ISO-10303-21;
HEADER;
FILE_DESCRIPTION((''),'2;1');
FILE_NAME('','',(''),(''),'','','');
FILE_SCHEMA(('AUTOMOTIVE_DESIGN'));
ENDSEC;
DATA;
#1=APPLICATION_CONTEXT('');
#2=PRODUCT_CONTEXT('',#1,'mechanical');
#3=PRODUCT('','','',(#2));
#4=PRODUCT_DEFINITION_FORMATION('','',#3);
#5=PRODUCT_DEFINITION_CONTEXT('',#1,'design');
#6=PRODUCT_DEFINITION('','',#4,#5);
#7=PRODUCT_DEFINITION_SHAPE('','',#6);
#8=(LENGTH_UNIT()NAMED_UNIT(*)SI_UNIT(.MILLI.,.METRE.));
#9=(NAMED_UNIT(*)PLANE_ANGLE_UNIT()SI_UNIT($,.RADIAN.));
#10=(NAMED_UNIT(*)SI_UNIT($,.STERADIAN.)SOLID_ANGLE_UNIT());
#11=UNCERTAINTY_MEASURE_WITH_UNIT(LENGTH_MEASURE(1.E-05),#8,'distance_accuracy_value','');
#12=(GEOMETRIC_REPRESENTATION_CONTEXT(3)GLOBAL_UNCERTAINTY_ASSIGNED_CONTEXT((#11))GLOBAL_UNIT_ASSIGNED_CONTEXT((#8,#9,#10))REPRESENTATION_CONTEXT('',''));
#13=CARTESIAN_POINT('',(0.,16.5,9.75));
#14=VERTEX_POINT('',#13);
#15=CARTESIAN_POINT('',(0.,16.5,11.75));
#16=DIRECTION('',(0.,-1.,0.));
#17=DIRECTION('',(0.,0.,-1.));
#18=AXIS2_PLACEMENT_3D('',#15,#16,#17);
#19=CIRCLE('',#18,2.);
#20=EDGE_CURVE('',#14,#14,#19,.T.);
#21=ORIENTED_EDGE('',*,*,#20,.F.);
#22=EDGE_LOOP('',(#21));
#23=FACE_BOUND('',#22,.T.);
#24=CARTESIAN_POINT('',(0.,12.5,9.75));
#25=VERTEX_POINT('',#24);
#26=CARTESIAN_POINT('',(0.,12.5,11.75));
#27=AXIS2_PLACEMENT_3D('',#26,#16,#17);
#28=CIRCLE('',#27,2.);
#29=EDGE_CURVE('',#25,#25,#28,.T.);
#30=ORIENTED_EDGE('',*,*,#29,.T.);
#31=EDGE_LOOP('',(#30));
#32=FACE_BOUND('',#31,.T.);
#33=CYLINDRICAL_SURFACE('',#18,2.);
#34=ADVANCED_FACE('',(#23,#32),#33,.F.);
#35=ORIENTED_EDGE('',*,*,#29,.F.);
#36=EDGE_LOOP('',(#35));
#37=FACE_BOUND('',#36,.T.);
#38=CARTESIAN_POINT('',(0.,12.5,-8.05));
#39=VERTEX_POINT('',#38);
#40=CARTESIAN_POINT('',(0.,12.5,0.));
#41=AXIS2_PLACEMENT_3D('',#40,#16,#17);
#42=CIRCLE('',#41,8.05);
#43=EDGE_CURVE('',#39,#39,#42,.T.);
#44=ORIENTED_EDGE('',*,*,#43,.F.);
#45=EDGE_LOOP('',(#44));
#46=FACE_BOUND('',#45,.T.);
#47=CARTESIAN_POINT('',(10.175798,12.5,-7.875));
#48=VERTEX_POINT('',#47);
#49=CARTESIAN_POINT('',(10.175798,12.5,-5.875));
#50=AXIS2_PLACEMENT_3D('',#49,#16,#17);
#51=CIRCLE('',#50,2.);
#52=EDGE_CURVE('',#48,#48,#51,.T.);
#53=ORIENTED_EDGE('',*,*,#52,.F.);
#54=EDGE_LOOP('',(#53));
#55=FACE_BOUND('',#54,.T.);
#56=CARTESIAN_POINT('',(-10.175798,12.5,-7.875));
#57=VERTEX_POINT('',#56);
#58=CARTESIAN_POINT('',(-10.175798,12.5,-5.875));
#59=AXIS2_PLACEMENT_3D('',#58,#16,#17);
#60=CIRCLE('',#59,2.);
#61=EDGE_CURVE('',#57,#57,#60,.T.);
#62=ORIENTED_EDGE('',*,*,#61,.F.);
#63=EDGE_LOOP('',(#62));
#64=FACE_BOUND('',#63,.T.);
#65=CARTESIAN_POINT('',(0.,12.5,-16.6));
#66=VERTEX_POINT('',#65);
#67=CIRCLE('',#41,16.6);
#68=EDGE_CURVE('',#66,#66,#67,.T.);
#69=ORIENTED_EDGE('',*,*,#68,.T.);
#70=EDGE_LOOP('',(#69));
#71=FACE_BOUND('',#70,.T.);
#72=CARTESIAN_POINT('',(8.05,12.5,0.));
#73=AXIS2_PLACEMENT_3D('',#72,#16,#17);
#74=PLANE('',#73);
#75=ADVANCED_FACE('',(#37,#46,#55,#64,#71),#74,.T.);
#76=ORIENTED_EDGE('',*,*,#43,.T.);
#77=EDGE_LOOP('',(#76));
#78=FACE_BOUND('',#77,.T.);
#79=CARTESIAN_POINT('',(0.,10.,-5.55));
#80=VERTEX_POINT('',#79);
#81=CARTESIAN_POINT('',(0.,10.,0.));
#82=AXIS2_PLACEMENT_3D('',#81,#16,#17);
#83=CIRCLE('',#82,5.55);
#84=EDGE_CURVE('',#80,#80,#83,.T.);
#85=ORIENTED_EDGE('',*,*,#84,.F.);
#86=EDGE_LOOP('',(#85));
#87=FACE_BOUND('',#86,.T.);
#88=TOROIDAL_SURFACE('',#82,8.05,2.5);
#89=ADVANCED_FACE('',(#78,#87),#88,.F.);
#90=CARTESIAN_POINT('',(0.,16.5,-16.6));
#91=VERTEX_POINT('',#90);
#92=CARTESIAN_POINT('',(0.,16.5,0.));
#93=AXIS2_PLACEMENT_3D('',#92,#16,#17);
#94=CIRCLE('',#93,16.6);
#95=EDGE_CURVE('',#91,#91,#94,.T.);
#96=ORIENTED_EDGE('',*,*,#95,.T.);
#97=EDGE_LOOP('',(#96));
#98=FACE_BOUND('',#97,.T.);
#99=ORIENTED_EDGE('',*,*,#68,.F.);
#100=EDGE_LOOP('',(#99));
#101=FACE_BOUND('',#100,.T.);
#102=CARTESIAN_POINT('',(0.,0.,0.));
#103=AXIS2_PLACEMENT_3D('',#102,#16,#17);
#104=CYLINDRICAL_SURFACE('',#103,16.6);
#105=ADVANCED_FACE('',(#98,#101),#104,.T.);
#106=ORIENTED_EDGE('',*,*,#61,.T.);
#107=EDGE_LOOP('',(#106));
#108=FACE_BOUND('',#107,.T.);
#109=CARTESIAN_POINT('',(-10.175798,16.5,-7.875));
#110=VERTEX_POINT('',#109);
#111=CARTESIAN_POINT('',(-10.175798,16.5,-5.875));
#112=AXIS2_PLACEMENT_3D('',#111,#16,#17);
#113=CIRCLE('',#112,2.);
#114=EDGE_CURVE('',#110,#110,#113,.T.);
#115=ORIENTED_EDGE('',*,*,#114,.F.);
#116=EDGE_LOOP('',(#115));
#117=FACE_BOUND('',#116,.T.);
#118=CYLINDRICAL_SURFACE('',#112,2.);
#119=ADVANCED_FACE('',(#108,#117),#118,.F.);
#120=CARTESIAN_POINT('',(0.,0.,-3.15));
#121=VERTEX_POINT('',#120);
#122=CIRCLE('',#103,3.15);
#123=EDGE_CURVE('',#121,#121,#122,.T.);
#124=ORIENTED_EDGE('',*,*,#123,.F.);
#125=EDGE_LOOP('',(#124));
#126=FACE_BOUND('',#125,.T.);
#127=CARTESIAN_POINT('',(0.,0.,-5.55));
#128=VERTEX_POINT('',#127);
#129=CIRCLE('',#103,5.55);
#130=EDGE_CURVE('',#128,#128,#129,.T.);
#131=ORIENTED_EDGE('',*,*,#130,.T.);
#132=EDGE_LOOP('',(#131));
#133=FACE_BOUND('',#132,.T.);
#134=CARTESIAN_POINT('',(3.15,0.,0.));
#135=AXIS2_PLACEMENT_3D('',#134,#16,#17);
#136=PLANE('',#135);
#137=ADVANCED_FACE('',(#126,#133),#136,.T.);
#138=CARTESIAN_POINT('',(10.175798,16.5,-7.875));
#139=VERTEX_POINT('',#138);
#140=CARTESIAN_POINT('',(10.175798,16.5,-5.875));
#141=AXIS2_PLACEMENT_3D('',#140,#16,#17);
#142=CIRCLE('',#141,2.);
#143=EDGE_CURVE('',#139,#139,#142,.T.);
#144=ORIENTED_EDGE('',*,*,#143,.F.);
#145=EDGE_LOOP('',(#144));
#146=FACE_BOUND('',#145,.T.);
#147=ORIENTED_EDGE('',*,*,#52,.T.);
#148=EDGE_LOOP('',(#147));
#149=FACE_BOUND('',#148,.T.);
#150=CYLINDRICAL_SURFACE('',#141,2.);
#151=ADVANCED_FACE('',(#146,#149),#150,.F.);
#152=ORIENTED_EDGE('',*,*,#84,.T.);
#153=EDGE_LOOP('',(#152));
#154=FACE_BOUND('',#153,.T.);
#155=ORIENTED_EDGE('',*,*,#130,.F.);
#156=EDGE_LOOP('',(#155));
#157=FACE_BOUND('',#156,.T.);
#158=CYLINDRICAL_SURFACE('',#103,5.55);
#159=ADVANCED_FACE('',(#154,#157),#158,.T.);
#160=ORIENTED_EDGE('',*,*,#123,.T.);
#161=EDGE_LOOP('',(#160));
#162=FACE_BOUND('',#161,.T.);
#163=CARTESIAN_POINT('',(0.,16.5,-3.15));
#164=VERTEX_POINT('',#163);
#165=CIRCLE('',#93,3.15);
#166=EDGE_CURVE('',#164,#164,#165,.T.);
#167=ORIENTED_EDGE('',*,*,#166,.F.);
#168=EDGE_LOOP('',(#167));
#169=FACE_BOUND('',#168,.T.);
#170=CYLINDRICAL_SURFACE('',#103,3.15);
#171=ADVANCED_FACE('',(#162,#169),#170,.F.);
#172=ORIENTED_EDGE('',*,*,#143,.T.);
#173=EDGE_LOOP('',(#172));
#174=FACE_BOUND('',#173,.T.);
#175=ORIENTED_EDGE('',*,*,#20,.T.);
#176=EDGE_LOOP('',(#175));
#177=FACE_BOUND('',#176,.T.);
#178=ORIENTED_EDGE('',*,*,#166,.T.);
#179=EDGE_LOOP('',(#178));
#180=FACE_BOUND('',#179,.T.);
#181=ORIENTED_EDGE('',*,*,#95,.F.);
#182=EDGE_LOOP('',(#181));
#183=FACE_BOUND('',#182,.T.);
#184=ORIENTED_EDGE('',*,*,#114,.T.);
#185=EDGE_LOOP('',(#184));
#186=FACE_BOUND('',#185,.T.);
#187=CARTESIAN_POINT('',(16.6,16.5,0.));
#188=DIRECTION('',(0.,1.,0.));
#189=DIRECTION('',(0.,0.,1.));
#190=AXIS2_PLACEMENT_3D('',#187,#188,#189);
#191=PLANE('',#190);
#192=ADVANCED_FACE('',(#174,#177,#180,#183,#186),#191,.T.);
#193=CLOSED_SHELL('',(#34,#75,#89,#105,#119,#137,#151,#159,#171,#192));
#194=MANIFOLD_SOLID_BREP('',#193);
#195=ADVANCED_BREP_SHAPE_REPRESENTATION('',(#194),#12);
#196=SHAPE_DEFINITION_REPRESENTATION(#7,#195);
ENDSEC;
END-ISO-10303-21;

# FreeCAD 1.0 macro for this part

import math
import FreeCAD as App
import Part
import Sketcher

V = App.Vector
Q = App.Units.Quantity

doc = App.newDocument("Part")
body = doc.addObject("PartDesign::Body", "Body")

sketch1 = body.newObject("Sketcher::SketchObject", "Sketch")
sketch1.AttachmentSupport = (doc.getObject("XY_Plane"), [""])
sketch1.MapMode = "FlatFace"
sketch1.addGeometry([
    Part.LineSegment(V(16.6, 16.5, 0), V(3.1, 16.5, 0)),
    Part.LineSegment(V(3.1, 16.5, 0), V(3.1, 0, 0)),
    Part.LineSegment(V(3.1, 0, 0), V(5.5, 0, 0)),
    Part.LineSegment(V(5.5, 0, 0), V(5.5, 10, 0)),
    Part.ArcOfCircle(Part.Circle(V(8.1, 10, 0), V(0, 0, 1), 2.5), math.radians(90), math.radians(180)),
    Part.LineSegment(V(8.1, 12.5, 0), V(16.6, 12.5, 0)),
    Part.LineSegment(V(16.6, 12.5, 0), V(16.6, 16.5, 0)),
], False)
sketch1.addConstraint([
    Sketcher.Constraint("Coincident", 0, 2, 1, 1),
    Sketcher.Constraint("Coincident", 1, 2, 2, 1),
    Sketcher.Constraint("Coincident", 2, 2, 3, 1),
    Sketcher.Constraint("Tangent", 3, 2, 4, 2),
    Sketcher.Constraint("Tangent", 4, 1, 5, 1),
    Sketcher.Constraint("Coincident", 5, 2, 6, 1),
    Sketcher.Constraint("Coincident", 6, 2, 0, 1),
    Sketcher.Constraint("Horizontal", 0),
    Sketcher.Constraint("Vertical", 1),
    Sketcher.Constraint("Horizontal", 2),
    Sketcher.Constraint("Vertical", 3),
    Sketcher.Constraint("Horizontal", 5),
    Sketcher.Constraint("Vertical", 6),
    Sketcher.Constraint("PointOnObject", 1, 2, -1),
    Sketcher.Constraint("Radius", 4, Q("2.5 mm")),
    Sketcher.Constraint("DistanceY", 3, 1, 3, 2, Q("10 mm")),
    Sketcher.Constraint("DistanceY", 6, 1, 6, 2, Q("4 mm")),
    Sketcher.Constraint("DistanceX", 2, 1, 2, 2, Q("2.4 mm")),
    Sketcher.Constraint("DistanceX", 0, 2, 0, 1, Q("13.45 mm")),
    Sketcher.Constraint("DistanceX", -1, 1, 5, 2, Q("16.6 mm")),
])
revolution = body.newObject("PartDesign::Revolution", "Revolution")
revolution.Profile = sketch1
revolution.ReferenceAxis = (sketch1, ["V_Axis"])
revolution.Angle = 360

sketch2 = body.newObject("Sketcher::SketchObject", "Sketch001")
sketch2.AttachmentSupport = (doc.getObject("XZ_Plane"), [""])
sketch2.MapMode = "FlatFace"
sketch2.AttachmentOffset = App.Placement(V(0, 0, -12.5), App.Rotation())
sketch2.addGeometry([
    Part.Circle(V(0, 11.8, 0), V(0, 0, 1), 2),
    Part.Circle(V(10.2, -5.9, 0), V(0, 0, 1), 2),
    Part.Circle(V(-10.2, -5.9, 0), V(0, 0, 1), 2),
], False)
sketch2.addConstraint([
    Sketcher.Constraint("Equal", 0, 1),
    Sketcher.Constraint("Equal", 1, 2),
    Sketcher.Constraint("Symmetric", 1, 3, 2, 3, -2),
    Sketcher.Constraint("PointOnObject", 0, 3, -2),
    Sketcher.Constraint("Diameter", 0, Q("4 mm")),
    Sketcher.Constraint("DistanceY", -1, 1, 0, 3, Q("11.75 mm")),
    Sketcher.Constraint("DistanceY", 1, 3, -1, 1, Q("5.875 mm")),
    Sketcher.Constraint("DistanceX", -1, 1, 1, 3, Q("10.175798 mm")),
])
pocket1 = body.newObject("PartDesign::Pocket", "Pocket")
pocket1.Profile = sketch2
pocket1.Type = "ThroughAll"

doc.recompute()
